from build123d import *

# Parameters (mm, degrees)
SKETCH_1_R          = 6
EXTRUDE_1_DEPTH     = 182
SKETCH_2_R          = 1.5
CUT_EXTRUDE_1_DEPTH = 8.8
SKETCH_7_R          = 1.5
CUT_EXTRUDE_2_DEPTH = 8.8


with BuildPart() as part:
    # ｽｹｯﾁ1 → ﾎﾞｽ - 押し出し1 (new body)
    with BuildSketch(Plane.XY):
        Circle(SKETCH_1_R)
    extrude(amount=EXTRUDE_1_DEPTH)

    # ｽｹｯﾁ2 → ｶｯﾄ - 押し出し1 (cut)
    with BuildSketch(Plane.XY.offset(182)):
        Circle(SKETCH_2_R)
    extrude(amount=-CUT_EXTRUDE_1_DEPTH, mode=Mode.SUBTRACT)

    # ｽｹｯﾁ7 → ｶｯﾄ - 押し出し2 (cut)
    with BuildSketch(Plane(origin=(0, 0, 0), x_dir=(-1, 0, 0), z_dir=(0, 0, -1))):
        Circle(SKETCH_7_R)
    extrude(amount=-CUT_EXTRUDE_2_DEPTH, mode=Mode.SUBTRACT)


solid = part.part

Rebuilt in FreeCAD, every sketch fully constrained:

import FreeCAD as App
import Part
import Sketcher
from FreeCAD import Vector
Q = App.Units.Quantity

doc = App.newDocument("Part")
body = doc.addObject("PartDesign::Body", "Body")

# Sketch on XY plane
sketch1 = body.newObject("Sketcher::SketchObject", "Sketch")
sketch1.AttachmentSupport = (doc.getObject("XY_Plane"), [""])
sketch1.MapMode = "FlatFace"
sketch1.addGeometry(Part.Circle(Vector(0, 0, 0), Vector(0, 0, 1), 6), False)
sketch1.addConstraint(Sketcher.Constraint("Coincident", 0, 3, -1, 1))
sketch1.addConstraint(Sketcher.Constraint("Diameter", 0, Q("12 mm")))
pad1 = body.newObject("PartDesign::Pad", "Pad")
pad1.Profile = sketch1
pad1.Length = 182

# Sketch on XY plane
sketch2 = body.newObject("Sketcher::SketchObject", "Sketch001")
sketch2.AttachmentSupport = (doc.getObject("XY_Plane"), [""])
sketch2.MapMode = "FlatFace"
sketch2.AttachmentOffset = App.Placement(Vector(0, 0, 182), App.Rotation())
sketch2.addGeometry(Part.Circle(Vector(0, 0, 0), Vector(0, 0, 1), 1.5), False)
sketch2.addConstraint(Sketcher.Constraint("Coincident", 0, 3, -1, 1))
sketch2.addConstraint(Sketcher.Constraint("Diameter", 0, Q("3 mm")))
pocket1 = body.newObject("PartDesign::Pocket", "Pocket")
pocket1.Profile = sketch2
pocket1.Length = 8.8

# Sketch on XY plane
sketch3 = body.newObject("Sketcher::SketchObject", "Sketch002")
sketch3.AttachmentSupport = (doc.getObject("XY_Plane"), [""])
sketch3.MapMode = "FlatFace"
sketch3.addGeometry(Part.Circle(Vector(0, 0, 0), Vector(0, 0, 1), 1.5), False)
sketch3.addConstraint(Sketcher.Constraint("Coincident", 0, 3, -1, 1))
sketch3.addConstraint(Sketcher.Constraint("Diameter", 0, Q("3 mm")))
pocket2 = body.newObject("PartDesign::Pocket", "Pocket001")
pocket2.Profile = sketch3
pocket2.Length = 8.8
pocket2.Reversed = True

doc.recompute()
